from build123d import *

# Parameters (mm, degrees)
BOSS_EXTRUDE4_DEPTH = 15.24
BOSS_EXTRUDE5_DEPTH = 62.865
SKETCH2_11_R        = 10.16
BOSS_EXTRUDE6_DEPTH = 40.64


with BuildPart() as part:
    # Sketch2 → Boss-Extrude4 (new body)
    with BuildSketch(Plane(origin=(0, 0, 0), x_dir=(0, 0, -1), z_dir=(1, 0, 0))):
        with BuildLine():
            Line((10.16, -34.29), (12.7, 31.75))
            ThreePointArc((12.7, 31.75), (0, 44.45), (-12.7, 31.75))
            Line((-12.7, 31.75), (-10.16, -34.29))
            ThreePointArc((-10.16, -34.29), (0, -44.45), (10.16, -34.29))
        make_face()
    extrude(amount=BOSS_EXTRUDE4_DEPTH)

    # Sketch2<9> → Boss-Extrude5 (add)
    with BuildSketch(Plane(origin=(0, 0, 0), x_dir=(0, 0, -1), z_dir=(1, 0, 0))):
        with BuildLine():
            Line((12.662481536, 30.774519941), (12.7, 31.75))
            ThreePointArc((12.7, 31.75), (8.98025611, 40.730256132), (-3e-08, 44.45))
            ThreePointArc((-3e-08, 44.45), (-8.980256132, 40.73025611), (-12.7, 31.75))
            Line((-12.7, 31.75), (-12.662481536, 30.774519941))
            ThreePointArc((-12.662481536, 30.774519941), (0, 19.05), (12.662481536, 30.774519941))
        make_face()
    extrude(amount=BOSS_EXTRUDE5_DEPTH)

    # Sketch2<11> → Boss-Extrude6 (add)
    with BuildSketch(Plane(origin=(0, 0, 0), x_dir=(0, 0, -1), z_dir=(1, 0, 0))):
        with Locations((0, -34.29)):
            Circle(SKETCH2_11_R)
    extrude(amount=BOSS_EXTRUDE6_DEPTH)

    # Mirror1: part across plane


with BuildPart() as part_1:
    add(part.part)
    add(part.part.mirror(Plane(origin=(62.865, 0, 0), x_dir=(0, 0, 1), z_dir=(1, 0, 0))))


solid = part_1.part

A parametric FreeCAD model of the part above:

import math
import FreeCAD as App
import Part
import Sketcher
Q = App.Units.Quantity

doc = App.newDocument("Part")
body = doc.addObject("PartDesign::Body", "Body")

sketch1 = doc.addObject("Sketcher::SketchObject", "Sketch")
body.addObject(sketch1)
sketch1.AttachmentSupport = (doc.YZ_Plane, [""])
sketch1.MapMode = "FlatFace"
sketch1.addGeometry([
    Part.LineSegment(App.Vector(-34, -10, 0), App.Vector(32, -13, 0)),
    Part.ArcOfCircle(Part.Circle(App.Vector(32, 0, 0), App.Vector(0, 0, 1), 13), math.radians(-90), math.radians(90)),
    Part.LineSegment(App.Vector(32, 13, 0), App.Vector(-34, 10, 0)),
    Part.ArcOfCircle(Part.Circle(App.Vector(-34, 0, 0), App.Vector(0, 0, 1), 10), math.radians(90), math.radians(270)),
], False)
sketch1.addConstraint([
    Sketcher.Constraint("Coincident", 0, 2, 1, 1),
    Sketcher.Constraint("Coincident", 1, 2, 2, 1),
    Sketcher.Constraint("Coincident", 2, 2, 3, 1),
    Sketcher.Constraint("Coincident", 3, 2, 0, 1),
    Sketcher.Constraint("Symmetric", 0, 2, 1, 2, -1),
    Sketcher.Constraint("Symmetric", 2, 2, 3, 2, -1),
    Sketcher.Constraint("Vertical", 1, 3, 0, 2),
    Sketcher.Constraint("Vertical", 3, 3, 2, 2),
    Sketcher.Constraint("Radius", 1, Q("0.5 in")),
    Sketcher.Constraint("Radius", 3, Q("0.4 in")),
    Sketcher.Constraint("DistanceX", 3, 3, 1, 3, Q("2.6 in")),
    Sketcher.Constraint("DistanceX", -1, 1, 1, 3, Q("1.25 in")),
])
pad1 = doc.addObject("PartDesign::Pad", "Pad")
body.addObject(pad1)
pad1.Profile = sketch1
pad1.Length = Q("0.6 in")

sketch2 = doc.addObject("Sketcher::SketchObject", "Sketch001")
body.addObject(sketch2)
sketch2.AttachmentSupport = (doc.YZ_Plane, [""])
sketch2.MapMode = "FlatFace"
sketch2.addGeometry([
    Part.LineSegment(App.Vector(30.8, -12.7, 0), App.Vector(31.8, -12.7, 0)),
    Part.ArcOfCircle(Part.Circle(App.Vector(31.8, 0, 0), App.Vector(0, 0, 1), 12.7), math.radians(-90), math.radians(0)),
    Part.ArcOfCircle(Part.Circle(App.Vector(31.8, 0, 0), App.Vector(0, 0, 1), 12.7), math.radians(0), math.radians(90)),
    Part.LineSegment(App.Vector(31.8, 12.7, 0), App.Vector(30.8, 12.7, 0)),
    Part.ArcOfCircle(Part.Circle(App.Vector(31.8, 0, 0), App.Vector(0, 0, 1), 12.7), math.radians(94), math.radians(266)),
], False)
sketch2.addConstraint([
    Sketcher.Constraint("Coincident", 0, 2, 1, 1),
    Sketcher.Constraint("Tangent", 1, 2, 2, 1),
    Sketcher.Constraint("Coincident", 2, 2, 3, 1),
    Sketcher.Constraint("Coincident", 3, 2, 4, 1),
    Sketcher.Constraint("Coincident", 4, 2, 0, 1),
    Sketcher.Constraint("Coincident", 4, 3, 1, 3),
    Sketcher.Constraint("Equal", 1, 2),
    Sketcher.Constraint("Equal", 2, 4),
    Sketcher.Constraint("Symmetric", 0, 2, 2, 2, -1),
    Sketcher.Constraint("PointOnObject", 1, 2, -1),
    Sketcher.Constraint("Vertical", 4, 3, 0, 2),
    Sketcher.Constraint("Vertical", 3, 2, 4, 2),
    Sketcher.Constraint("Radius", 1, Q("0.5 in")),
    Sketcher.Constraint("DistanceX", -1, 1, 1, 3, Q("1.25 in")),
    Sketcher.Constraint("Distance", 0, 0.976201),
])
pad2 = doc.addObject("PartDesign::Pad", "Pad001")
body.addObject(pad2)
pad2.Profile = sketch2
pad2.Length = Q("2.475 in")

sketch3 = doc.addObject("Sketcher::SketchObject", "Sketch002")
body.addObject(sketch3)
sketch3.AttachmentSupport = (doc.YZ_Plane, [""])
sketch3.MapMode = "FlatFace"
sketch3.addGeometry(Part.Circle(App.Vector(-34, 0, 0), App.Vector(0, 0, 1), 10), False)
sketch3.addConstraint([
    Sketcher.Constraint("PointOnObject", 0, 3, -1),
    Sketcher.Constraint("Diameter", 0, Q("0.8 in")),
    Sketcher.Constraint("DistanceX", 0, 3, -1, 1, Q("1.35 in")),
])
pad3 = doc.addObject("PartDesign::Pad", "Pad002")
body.addObject(pad3)
pad3.Profile = sketch3
pad3.Length = Q("1.6 in")
body2 = doc.addObject("PartDesign::Body", "Body001")
doc.recompute()

body2.BaseFeature = body
doc.recompute()

mirroring = doc.addObject("Part::Mirroring", "Mirroring")
mirroring.Source = body
mirroring.Base = App.Vector(62.865, 0, 0)
mirroring.Normal = App.Vector(1, 0, 0)
body3 = doc.addObject("PartDesign::Body", "Body002")
body3.BaseFeature = mirroring
boolean = doc.addObject("PartDesign::Boolean", "Boolean")
body2.addObject(boolean)
boolean.Type = "Fuse"
boolean.addObjects([body3])
doc.recompute()
mirroring.Visibility = False

doc.recompute()
